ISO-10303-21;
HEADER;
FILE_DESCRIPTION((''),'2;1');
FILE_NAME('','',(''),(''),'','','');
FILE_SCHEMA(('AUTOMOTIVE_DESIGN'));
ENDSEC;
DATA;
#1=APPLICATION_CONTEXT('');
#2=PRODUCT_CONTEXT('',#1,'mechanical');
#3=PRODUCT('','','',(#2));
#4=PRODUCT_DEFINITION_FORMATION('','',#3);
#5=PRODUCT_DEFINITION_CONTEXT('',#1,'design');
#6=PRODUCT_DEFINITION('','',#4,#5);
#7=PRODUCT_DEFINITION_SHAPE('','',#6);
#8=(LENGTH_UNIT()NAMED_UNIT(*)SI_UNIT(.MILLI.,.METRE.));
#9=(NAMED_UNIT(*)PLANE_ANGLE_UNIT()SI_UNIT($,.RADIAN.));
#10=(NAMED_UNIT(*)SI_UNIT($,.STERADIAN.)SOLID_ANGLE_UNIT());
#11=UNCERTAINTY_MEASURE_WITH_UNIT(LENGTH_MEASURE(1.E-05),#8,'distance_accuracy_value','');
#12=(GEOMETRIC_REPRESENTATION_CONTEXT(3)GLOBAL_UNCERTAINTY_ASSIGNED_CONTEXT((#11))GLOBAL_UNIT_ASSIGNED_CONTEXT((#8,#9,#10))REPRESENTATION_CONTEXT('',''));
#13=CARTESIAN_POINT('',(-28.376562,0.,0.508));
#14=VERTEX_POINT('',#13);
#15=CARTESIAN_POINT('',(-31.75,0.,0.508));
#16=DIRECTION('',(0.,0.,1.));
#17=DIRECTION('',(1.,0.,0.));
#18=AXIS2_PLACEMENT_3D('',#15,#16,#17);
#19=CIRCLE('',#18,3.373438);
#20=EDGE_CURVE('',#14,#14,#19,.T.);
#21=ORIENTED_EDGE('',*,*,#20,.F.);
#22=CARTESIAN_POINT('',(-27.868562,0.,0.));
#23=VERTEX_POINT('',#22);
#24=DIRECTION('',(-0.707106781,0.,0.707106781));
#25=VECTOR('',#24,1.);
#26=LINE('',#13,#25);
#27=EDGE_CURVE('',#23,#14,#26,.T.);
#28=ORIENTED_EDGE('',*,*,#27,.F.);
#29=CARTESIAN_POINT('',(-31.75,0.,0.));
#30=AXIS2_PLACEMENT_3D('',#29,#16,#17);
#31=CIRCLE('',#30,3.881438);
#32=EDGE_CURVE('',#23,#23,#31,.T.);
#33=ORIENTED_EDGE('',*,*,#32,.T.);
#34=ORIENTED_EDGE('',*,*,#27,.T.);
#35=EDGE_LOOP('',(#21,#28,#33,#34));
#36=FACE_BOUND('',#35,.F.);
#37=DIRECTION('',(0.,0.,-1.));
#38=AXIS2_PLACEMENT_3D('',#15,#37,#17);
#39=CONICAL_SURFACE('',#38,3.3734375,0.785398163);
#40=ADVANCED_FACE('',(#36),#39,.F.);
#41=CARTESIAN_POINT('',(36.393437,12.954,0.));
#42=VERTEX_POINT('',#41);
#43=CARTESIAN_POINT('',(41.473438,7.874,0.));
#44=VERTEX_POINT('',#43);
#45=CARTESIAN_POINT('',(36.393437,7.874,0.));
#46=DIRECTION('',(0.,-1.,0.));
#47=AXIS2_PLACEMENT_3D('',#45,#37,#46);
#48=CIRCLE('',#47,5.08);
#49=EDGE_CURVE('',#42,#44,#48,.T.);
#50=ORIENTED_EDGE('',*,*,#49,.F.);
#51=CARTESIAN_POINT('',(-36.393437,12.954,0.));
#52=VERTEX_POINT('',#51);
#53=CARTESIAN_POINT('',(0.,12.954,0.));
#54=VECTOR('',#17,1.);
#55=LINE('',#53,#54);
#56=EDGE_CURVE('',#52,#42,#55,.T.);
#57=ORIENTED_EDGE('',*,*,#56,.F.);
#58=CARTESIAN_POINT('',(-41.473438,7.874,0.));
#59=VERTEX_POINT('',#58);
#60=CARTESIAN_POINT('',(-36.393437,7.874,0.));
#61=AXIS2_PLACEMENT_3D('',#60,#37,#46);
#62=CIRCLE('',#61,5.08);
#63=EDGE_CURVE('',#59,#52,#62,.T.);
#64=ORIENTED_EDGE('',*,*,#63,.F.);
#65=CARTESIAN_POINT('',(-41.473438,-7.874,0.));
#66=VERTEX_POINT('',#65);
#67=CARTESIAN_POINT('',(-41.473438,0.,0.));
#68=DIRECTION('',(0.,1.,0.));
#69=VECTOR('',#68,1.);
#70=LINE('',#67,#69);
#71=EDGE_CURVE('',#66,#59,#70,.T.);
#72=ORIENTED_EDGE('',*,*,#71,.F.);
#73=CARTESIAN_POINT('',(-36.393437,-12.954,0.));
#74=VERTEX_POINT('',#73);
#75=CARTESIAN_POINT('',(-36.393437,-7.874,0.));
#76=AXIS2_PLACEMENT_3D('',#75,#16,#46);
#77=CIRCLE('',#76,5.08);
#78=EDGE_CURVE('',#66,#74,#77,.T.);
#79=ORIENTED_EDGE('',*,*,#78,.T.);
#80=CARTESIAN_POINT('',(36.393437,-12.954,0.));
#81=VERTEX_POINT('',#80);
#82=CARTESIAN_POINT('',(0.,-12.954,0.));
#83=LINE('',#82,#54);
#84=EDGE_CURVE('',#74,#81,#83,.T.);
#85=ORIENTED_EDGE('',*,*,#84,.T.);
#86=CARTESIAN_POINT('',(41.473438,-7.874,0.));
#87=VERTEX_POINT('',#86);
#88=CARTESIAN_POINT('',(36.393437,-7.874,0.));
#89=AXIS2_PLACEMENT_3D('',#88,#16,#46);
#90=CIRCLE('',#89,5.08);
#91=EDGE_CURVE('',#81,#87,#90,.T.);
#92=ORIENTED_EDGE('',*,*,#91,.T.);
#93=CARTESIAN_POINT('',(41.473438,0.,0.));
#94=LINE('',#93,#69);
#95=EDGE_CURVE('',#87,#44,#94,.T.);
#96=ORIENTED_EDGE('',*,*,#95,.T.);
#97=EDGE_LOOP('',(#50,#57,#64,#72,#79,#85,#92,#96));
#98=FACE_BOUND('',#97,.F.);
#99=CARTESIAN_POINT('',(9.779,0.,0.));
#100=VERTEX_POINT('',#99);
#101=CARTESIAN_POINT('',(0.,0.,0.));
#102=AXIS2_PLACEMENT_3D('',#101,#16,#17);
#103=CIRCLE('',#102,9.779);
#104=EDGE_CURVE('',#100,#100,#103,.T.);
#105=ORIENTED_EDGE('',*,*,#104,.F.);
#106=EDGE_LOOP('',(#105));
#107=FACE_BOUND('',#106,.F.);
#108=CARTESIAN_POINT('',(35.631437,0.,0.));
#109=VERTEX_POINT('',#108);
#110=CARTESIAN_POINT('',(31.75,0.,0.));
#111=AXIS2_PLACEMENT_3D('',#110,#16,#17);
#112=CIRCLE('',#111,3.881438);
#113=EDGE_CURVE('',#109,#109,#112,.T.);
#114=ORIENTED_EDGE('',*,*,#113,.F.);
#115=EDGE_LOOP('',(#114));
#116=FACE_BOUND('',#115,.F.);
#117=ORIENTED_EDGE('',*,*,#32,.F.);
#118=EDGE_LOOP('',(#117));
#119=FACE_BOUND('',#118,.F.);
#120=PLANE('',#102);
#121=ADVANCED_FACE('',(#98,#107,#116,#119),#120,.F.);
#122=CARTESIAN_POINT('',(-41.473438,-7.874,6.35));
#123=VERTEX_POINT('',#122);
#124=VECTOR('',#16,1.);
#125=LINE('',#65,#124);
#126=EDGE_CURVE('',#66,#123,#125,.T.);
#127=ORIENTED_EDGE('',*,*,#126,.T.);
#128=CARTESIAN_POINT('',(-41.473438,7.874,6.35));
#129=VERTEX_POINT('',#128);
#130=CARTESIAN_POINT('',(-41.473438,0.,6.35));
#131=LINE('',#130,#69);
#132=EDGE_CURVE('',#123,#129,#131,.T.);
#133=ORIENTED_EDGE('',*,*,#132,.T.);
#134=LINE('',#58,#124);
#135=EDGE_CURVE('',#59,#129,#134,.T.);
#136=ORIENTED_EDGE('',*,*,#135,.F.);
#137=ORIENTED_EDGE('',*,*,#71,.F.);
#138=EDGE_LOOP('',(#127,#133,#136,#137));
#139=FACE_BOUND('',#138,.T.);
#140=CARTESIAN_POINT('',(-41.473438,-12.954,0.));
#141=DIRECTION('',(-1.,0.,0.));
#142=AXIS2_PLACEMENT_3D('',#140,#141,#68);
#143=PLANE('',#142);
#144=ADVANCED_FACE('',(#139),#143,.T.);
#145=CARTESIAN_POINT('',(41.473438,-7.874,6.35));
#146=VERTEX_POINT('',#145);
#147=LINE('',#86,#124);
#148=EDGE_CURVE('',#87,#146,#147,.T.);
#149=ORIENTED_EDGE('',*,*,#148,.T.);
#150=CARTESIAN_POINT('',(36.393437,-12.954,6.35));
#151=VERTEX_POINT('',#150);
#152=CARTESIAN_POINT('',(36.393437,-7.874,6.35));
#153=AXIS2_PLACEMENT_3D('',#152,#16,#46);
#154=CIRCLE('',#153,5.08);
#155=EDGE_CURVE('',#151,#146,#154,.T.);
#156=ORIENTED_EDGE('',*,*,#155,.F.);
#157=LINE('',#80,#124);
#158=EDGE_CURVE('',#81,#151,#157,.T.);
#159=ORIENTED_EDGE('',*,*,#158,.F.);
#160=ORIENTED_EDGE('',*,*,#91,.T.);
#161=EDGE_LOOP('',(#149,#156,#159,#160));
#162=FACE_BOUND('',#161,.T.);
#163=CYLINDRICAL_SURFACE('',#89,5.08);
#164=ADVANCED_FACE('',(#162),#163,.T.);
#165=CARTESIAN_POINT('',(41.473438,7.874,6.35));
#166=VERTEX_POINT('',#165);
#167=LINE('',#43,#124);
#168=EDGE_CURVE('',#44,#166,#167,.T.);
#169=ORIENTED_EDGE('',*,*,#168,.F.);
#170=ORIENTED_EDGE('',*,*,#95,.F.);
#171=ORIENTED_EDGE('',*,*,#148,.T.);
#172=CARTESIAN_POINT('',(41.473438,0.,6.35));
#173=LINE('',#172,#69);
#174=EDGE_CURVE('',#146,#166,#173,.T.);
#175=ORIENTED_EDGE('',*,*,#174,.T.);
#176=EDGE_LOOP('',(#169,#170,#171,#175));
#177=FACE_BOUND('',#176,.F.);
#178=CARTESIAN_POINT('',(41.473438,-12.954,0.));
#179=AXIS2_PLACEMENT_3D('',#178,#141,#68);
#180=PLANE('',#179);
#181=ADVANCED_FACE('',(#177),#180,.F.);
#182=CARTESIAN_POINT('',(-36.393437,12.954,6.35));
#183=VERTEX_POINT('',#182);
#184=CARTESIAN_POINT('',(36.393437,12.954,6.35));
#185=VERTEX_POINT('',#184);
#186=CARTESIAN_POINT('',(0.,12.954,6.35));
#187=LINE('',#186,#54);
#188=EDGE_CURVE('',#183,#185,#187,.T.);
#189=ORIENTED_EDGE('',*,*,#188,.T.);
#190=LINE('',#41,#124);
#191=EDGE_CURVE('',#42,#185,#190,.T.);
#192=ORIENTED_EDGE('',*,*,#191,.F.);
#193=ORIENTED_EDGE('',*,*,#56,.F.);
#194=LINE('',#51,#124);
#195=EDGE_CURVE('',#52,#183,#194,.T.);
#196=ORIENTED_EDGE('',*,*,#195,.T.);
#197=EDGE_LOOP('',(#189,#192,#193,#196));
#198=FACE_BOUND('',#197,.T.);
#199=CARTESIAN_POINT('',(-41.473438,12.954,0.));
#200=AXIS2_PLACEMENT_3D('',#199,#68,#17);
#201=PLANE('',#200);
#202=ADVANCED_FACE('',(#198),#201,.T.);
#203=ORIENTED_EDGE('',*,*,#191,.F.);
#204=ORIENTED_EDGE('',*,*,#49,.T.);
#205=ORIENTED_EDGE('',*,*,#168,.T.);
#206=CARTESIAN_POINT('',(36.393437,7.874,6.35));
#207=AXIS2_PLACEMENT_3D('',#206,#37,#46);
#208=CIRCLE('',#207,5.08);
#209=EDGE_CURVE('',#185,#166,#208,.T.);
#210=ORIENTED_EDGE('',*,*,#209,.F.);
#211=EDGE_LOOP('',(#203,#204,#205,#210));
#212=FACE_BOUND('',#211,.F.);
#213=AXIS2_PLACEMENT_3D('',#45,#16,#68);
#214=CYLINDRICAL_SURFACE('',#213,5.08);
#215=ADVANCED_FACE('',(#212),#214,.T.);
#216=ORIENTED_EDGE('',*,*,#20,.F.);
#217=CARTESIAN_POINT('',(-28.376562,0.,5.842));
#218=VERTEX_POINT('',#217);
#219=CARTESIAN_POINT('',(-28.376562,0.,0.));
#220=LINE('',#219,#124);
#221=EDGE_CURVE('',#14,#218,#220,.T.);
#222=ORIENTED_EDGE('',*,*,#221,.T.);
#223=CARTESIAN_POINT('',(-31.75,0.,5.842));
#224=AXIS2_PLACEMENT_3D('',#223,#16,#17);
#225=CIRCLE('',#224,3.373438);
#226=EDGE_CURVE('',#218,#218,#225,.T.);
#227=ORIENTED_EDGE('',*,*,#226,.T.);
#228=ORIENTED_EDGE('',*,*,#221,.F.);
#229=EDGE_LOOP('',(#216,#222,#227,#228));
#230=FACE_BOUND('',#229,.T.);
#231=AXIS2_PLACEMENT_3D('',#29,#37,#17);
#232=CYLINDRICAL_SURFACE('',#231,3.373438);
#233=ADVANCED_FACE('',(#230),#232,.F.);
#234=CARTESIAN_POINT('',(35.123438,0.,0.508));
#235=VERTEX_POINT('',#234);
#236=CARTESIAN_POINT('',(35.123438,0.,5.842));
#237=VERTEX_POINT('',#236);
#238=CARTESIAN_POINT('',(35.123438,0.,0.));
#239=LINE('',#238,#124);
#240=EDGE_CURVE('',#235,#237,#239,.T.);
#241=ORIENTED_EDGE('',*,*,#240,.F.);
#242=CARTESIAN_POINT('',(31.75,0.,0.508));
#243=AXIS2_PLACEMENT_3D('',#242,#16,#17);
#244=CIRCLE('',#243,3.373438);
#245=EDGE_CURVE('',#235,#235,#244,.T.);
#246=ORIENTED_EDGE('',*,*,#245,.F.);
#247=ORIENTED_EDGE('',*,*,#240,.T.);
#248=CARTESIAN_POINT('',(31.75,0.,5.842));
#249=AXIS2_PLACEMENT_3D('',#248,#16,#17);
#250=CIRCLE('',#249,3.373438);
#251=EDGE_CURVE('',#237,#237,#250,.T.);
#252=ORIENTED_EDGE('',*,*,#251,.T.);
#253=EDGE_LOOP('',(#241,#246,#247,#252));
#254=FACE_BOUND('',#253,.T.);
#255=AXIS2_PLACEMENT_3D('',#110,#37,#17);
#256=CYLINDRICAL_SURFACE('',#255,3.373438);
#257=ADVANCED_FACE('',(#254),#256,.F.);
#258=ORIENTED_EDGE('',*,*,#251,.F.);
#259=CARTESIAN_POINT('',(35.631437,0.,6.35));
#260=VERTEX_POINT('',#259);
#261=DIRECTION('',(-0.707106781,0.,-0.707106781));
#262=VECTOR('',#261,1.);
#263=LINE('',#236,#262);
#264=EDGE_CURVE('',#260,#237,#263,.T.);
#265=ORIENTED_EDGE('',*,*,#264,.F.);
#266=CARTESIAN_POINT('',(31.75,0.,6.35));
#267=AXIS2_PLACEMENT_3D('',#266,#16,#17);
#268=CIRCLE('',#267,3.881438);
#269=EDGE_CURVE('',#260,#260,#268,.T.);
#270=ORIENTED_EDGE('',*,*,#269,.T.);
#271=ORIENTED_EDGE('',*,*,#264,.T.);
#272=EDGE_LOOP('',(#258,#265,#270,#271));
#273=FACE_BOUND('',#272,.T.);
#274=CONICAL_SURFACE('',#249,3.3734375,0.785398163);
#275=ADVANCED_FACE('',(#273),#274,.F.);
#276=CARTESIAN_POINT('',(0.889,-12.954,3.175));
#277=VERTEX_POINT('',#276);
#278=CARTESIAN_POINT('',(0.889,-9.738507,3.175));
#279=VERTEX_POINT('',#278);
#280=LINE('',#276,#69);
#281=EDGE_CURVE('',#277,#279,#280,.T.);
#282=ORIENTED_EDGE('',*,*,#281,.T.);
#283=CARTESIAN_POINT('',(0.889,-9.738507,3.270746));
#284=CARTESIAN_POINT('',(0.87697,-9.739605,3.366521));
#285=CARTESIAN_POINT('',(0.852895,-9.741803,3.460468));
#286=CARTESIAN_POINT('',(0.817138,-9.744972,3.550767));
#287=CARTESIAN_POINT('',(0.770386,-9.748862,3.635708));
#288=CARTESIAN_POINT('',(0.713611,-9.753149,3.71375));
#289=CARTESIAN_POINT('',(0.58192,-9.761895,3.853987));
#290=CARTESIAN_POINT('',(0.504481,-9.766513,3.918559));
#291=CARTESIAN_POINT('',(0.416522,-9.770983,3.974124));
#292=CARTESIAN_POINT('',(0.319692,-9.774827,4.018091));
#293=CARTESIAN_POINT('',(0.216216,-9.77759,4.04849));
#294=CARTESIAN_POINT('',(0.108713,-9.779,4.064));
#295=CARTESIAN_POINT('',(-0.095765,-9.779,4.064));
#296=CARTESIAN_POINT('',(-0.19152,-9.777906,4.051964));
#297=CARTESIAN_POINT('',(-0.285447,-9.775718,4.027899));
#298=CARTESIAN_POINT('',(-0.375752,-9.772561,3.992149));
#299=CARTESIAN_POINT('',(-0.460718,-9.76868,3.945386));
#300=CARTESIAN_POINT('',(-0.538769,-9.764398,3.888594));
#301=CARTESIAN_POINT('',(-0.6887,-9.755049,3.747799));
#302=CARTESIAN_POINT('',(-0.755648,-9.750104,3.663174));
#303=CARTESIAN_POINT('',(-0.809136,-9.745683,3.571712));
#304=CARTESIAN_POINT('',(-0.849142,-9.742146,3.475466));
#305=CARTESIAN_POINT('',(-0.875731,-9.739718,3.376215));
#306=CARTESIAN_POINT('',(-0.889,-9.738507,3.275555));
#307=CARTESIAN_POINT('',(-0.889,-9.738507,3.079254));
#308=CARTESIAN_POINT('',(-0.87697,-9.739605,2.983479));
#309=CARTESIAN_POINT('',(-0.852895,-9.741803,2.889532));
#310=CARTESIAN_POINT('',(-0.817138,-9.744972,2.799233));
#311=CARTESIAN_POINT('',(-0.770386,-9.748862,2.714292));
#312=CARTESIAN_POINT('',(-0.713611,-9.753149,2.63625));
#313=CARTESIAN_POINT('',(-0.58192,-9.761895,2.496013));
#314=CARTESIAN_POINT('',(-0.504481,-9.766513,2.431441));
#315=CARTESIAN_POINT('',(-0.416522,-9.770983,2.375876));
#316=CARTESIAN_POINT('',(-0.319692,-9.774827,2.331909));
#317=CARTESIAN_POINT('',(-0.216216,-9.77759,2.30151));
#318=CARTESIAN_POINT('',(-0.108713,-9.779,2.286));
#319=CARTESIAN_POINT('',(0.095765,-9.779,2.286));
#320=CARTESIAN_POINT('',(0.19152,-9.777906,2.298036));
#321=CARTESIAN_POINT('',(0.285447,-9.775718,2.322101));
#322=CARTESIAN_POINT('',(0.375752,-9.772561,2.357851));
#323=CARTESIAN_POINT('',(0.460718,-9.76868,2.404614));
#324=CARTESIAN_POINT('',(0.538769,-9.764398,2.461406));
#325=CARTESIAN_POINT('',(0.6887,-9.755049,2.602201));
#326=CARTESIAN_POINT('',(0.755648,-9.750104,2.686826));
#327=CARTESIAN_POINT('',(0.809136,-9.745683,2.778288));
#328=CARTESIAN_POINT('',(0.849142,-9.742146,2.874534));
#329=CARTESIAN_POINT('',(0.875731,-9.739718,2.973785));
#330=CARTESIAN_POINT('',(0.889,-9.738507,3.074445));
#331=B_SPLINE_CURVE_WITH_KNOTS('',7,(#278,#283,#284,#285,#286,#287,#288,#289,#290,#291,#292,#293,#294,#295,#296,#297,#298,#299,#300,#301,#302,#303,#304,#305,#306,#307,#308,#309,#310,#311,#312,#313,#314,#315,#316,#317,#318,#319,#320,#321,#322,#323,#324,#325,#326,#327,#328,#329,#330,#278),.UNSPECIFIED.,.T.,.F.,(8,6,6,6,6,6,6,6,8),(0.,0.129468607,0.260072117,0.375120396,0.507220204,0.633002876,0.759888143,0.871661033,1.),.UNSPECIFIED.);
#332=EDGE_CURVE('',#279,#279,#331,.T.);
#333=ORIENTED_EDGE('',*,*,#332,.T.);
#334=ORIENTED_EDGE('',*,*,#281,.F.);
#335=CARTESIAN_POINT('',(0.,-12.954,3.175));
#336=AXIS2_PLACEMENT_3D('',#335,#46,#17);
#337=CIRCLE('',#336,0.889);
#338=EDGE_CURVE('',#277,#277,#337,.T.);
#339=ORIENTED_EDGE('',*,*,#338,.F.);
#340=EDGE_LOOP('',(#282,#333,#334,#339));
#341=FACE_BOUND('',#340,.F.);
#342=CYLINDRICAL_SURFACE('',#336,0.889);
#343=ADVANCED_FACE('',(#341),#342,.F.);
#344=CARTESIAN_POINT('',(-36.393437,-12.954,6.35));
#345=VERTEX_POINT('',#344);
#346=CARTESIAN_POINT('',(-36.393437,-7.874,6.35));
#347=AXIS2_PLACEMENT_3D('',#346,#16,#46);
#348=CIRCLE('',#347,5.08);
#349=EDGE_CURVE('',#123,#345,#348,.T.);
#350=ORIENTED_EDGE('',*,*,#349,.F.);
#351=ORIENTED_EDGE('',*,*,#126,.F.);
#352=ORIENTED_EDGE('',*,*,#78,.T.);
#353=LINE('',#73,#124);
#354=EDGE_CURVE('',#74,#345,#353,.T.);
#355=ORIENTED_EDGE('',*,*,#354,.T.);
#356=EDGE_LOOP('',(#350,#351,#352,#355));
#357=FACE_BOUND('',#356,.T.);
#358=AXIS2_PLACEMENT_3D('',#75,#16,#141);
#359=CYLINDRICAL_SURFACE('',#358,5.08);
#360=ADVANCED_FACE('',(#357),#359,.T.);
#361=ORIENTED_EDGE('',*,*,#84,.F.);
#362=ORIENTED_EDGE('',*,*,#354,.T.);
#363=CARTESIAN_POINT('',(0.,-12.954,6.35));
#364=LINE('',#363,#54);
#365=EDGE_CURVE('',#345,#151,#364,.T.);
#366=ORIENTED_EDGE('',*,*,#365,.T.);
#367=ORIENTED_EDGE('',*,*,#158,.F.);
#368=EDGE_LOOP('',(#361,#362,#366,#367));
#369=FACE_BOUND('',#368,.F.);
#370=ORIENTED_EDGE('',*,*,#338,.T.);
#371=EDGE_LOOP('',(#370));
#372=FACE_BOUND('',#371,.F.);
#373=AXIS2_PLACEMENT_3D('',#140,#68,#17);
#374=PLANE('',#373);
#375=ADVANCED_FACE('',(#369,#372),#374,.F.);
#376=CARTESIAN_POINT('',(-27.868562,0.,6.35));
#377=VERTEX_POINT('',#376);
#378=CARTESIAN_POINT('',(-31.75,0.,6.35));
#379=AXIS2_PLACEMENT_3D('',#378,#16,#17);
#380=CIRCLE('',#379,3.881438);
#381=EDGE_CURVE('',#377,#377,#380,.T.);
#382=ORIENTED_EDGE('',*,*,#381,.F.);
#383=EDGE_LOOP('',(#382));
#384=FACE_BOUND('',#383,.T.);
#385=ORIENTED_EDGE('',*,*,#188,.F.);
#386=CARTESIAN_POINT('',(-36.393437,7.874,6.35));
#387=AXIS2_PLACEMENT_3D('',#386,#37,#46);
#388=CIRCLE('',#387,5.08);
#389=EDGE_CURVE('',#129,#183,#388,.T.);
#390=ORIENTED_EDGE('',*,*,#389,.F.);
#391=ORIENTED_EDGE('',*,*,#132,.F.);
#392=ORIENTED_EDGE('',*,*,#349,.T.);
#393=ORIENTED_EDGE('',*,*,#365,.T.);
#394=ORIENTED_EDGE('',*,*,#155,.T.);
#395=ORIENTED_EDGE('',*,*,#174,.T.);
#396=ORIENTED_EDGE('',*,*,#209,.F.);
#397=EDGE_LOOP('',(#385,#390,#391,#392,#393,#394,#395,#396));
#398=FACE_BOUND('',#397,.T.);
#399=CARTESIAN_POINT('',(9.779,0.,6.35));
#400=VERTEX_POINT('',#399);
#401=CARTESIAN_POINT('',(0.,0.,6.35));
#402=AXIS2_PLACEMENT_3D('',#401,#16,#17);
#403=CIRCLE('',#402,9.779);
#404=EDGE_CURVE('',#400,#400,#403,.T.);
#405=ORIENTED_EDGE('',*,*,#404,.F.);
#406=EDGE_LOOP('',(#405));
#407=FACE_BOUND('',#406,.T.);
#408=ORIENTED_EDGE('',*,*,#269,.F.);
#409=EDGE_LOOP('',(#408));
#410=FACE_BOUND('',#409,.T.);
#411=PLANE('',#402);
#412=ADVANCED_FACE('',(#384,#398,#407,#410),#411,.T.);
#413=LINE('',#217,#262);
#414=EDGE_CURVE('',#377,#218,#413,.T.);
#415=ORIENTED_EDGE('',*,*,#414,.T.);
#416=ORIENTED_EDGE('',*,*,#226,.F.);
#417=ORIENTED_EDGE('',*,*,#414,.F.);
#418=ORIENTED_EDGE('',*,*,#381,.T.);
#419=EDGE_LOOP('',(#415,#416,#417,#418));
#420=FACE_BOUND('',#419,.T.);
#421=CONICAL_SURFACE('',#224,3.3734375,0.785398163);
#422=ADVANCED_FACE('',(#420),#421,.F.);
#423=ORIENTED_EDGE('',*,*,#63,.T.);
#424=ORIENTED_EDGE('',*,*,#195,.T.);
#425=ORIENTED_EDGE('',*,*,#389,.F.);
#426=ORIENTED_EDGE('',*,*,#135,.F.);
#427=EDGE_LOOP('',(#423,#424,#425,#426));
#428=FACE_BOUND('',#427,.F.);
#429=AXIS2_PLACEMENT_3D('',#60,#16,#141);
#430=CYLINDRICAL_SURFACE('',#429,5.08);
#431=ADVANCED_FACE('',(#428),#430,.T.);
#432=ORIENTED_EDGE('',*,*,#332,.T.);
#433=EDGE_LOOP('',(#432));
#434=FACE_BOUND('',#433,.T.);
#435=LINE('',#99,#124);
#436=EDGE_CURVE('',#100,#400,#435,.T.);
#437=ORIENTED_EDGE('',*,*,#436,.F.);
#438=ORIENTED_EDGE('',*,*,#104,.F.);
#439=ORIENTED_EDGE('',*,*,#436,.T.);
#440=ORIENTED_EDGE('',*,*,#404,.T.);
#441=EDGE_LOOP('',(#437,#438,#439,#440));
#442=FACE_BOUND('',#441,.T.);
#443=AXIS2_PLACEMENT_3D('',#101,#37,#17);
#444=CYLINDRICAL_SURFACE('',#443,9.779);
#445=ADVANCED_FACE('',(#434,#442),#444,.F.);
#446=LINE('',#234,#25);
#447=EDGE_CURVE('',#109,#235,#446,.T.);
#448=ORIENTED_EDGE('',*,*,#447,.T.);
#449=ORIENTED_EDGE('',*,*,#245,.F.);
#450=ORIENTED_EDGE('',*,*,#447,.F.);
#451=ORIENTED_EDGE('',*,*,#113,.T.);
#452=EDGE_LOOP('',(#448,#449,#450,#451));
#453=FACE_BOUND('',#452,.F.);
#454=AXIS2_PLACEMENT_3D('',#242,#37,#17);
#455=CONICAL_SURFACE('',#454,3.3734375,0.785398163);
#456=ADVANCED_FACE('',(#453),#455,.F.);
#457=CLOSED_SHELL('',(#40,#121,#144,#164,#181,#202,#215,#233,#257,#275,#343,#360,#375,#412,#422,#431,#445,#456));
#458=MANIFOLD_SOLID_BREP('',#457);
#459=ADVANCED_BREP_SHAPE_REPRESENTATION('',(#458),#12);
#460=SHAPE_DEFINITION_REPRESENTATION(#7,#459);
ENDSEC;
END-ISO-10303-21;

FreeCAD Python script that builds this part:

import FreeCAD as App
import Part
import Sketcher

V = App.Vector
Q = App.Units.Quantity


def edges_at(feature, points):
    """Names of the edges that pass closest to the given points."""
    edges = feature.Shape.Edges
    near = lambda p: min(range(len(edges)), key=lambda i: edges[i].distToShape(Part.Vertex(*p))[0])
    return sorted({f"Edge{near(p) + 1}" for p in points})


def add_polygon(sketch, points):
    """Adds a closed chain of lines whose ends are joined by coincident constraints."""
    first, n = sketch.GeometryCount, len(points)
    for a, b in zip(points, points[1:] + points[:1]):
        sketch.addGeometry(Part.LineSegment(App.Vector(*a, 0), App.Vector(*b, 0)), False)
    for i in range(n):
        sketch.addConstraint(Sketcher.Constraint("Coincident", first + i, 2, first + (i + 1) % n, 1))

doc = App.newDocument("Part")
body = doc.addObject("PartDesign::Body", "Body")

sketch1 = body.newObject("Sketcher::SketchObject", "Sketch")
sketch1.AttachmentSupport = (doc.getObject("XY_Plane"), [""])
sketch1.MapMode = "FlatFace"
add_polygon(sketch1, [(-41.5, 13), (-41.5, -13), (41.5, -13), (41.5, 13)])
sketch1.addGeometry(Part.Circle(V(-31.8, 0, 0), V(0, 0, 1), 3.4), False)
sketch1.addGeometry(Part.Circle(V(0, 0, 0), V(0, 0, 1), 9.8), False)
sketch1.addGeometry(Part.Circle(V(31.8, 0, 0), V(0, 0, 1), 3.4), False)
sketch1.addConstraint(Sketcher.Constraint("Vertical", 0))
sketch1.addConstraint(Sketcher.Constraint("Horizontal", 1))
sketch1.addConstraint(Sketcher.Constraint("Vertical", 2))
sketch1.addConstraint(Sketcher.Constraint("Horizontal", 3))
sketch1.addConstraint(Sketcher.Constraint("Coincident", 5, 3, -1, 1))
sketch1.addConstraint(Sketcher.Constraint("Equal", 4, 6))
sketch1.addConstraint(Sketcher.Constraint("Symmetric", 4, 3, 6, 3, -1, 1))
sketch1.addConstraint(Sketcher.Constraint("Symmetric", 0, 2, 2, 2, -1, 1))
sketch1.addConstraint(Sketcher.Constraint("PointOnObject", 4, 3, -1))
sketch1.addConstraint(Sketcher.Constraint("Diameter", 5, Q("0.77 in")))
sketch1.addConstraint(Sketcher.Constraint("Diameter", 4, Q("0.265625 in")))
sketch1.addConstraint(Sketcher.Constraint("DistanceY", 0, 2, 0, 1, Q("1.02 in")))
sketch1.addConstraint(Sketcher.Constraint("DistanceX", 4, 3, 6, 3, Q("2.5 in")))
sketch1.addConstraint(Sketcher.Constraint("DistanceX", 1, 1, 1, 2, Q("3.265625 in")))
pad1 = body.newObject("PartDesign::Pad", "Pad")
pad1.Profile = sketch1
pad1.Length = Q("0.25 in")

sketch2 = body.newObject("Sketcher::SketchObject", "Sketch001")
sketch2.AttachmentSupport = (doc.getObject("XZ_Plane"), [""])
sketch2.MapMode = "FlatFace"
sketch2.AttachmentOffset = App.Placement(V(0, 0, 0.51 * 25.4), App.Rotation())
sketch2.addGeometry(Part.Circle(V(0, 3.2, 0), V(0, 0, 1), 0.9), False)
sketch2.addConstraint(Sketcher.Constraint("PointOnObject", 0, 3, -2))
sketch2.addConstraint(Sketcher.Constraint("Diameter", 0, Q("0.07 in")))
sketch2.addConstraint(Sketcher.Constraint("DistanceY", -1, 1, 0, 3, Q("0.125 in")))
pocket1 = body.newObject("PartDesign::Pocket", "Pocket")
pocket1.Profile = sketch2
pocket1.Length = 3.216493
doc.recompute()

fillet = body.newObject("PartDesign::Fillet", "Fillet")
fillet.Base = (pocket1, edges_at(pocket1, [
    (-41.473, -12.954, 3.175),
    (41.473, -12.954, 3.175),
    (41.473, 12.954, 3.175),
    (-41.473, 12.954, 3.175),
]))
fillet.Radius = Q("0.2 in")
doc.recompute()

chamfer = body.newObject("PartDesign::Chamfer", "Chamfer")
chamfer.Base = (fillet, edges_at(fillet, [
    (-35.123, 0, 6.35),
    (28.377, 0, 6.35),
    (-35.123, 0, 0),
    (28.377, 0, 0),
]))
chamfer.Size = Q("0.02 in")

doc.recompute()
